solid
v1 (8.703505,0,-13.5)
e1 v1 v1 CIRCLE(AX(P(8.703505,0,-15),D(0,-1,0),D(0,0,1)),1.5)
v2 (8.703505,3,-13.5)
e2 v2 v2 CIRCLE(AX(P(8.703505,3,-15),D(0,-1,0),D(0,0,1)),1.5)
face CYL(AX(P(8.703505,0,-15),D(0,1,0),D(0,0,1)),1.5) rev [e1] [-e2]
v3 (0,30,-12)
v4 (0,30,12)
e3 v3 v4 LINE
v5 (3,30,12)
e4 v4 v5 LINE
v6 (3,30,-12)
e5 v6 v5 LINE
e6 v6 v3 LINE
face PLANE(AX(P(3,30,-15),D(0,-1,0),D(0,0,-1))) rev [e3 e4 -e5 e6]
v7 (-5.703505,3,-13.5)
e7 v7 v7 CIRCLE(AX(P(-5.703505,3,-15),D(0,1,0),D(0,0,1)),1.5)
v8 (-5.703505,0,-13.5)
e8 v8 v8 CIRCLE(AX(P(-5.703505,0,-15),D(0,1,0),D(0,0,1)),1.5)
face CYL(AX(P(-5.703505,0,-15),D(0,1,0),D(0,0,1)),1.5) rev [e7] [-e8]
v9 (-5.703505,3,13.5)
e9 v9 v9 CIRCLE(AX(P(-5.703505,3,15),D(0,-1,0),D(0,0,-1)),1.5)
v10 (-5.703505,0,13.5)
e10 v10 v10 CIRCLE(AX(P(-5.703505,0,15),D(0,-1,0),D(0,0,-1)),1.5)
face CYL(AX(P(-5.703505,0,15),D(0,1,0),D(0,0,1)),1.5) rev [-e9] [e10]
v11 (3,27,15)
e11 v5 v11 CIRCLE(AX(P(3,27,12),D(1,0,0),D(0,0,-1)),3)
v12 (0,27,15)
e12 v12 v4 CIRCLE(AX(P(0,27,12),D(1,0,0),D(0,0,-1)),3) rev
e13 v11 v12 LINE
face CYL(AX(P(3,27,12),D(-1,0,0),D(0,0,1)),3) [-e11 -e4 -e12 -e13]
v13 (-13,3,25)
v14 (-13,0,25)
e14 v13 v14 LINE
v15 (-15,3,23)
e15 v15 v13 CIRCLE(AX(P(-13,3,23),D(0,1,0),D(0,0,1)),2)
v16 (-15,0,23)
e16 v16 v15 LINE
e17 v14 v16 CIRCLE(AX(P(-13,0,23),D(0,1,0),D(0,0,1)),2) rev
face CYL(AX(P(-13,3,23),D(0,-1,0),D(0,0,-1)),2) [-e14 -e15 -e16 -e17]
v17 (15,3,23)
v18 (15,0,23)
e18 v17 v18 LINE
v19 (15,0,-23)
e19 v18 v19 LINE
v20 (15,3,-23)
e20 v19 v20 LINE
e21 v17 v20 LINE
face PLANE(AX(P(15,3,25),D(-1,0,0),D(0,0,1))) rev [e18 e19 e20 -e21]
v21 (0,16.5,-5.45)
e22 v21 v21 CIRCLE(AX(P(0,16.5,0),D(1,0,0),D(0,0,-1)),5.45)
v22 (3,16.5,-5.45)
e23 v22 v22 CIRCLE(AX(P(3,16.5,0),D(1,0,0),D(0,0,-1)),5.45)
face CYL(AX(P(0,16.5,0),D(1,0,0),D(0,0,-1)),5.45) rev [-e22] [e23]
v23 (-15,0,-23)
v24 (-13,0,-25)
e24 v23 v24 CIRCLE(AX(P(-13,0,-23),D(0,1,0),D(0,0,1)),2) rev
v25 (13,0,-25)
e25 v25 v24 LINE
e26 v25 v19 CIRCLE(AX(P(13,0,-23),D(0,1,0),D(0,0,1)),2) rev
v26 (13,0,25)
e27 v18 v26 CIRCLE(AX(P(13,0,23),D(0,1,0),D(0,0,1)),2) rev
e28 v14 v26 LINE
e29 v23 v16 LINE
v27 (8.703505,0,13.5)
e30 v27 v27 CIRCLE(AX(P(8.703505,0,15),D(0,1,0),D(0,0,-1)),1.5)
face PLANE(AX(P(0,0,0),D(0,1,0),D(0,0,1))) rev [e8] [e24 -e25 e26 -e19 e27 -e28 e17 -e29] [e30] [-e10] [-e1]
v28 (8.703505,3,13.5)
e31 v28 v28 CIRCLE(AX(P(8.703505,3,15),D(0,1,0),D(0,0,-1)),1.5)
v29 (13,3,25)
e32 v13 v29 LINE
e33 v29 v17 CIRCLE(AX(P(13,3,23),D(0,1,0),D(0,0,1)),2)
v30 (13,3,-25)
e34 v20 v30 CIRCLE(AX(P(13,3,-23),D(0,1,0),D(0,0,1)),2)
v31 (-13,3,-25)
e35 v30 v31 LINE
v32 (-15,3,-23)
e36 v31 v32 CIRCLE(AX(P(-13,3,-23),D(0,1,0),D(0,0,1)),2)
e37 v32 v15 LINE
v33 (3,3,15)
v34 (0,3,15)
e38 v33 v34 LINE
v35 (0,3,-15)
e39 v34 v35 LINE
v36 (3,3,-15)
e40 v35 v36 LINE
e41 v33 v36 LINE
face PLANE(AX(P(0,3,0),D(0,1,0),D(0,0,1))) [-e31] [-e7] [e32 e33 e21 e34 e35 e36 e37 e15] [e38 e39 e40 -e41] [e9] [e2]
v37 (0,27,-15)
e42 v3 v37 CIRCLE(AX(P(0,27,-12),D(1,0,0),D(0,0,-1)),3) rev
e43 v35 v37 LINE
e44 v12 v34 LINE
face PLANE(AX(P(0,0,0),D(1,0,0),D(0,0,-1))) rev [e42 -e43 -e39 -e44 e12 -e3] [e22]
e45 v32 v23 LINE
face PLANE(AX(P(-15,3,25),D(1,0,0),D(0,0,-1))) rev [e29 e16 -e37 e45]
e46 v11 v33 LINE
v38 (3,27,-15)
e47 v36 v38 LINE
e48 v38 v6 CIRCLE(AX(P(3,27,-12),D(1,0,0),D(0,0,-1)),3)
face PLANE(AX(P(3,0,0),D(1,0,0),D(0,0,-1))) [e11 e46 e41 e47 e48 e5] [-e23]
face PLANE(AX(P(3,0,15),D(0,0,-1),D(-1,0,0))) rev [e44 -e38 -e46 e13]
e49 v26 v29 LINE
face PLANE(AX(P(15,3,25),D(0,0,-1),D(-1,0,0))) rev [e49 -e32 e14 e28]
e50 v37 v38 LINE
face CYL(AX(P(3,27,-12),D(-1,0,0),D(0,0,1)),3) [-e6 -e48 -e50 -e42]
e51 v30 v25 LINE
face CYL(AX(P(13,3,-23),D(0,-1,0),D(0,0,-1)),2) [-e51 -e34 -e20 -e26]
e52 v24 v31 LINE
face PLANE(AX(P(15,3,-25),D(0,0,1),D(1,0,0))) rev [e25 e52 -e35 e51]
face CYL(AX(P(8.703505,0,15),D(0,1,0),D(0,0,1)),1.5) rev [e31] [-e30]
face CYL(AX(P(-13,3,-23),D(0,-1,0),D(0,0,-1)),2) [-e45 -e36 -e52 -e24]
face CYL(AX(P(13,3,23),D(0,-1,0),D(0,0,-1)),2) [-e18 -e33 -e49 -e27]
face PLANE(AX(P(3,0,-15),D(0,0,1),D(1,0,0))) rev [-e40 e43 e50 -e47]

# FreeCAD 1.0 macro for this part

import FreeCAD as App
import Part
import Sketcher

V = App.Vector


def edges_at(feature, points):
    """Names of the edges that pass closest to the given points."""
    edges = feature.Shape.Edges
    near = lambda p: min(range(len(edges)), key=lambda i: edges[i].distToShape(Part.Vertex(*p))[0])
    return sorted({f"Edge{near(p) + 1}" for p in points})

doc = App.newDocument("Part")
body = doc.addObject("PartDesign::Body", "Body")

# Sketch on XZ plane
sketch1 = doc.addObject("Sketcher::SketchObject", "Sketch")
body.addObject(sketch1)
sketch1.AttachmentSupport = (doc.XZ_Plane, [""])
sketch1.MapMode = "FlatFace"
sketch1.addGeometry([
    Part.LineSegment(V(-15, -25, 0), V(-15, 25, 0)),
    Part.LineSegment(V(-15, 25, 0), V(15, 25, 0)),
    Part.LineSegment(V(15, 25, 0), V(15, -25, 0)),
    Part.LineSegment(V(15, -25, 0), V(-15, -25, 0)),
], False)
sketch1.addConstraint([
    Sketcher.Constraint("Coincident", 0, 2, 1, 1),
    Sketcher.Constraint("Coincident", 1, 2, 2, 1),
    Sketcher.Constraint("Coincident", 2, 2, 3, 1),
    Sketcher.Constraint("Coincident", 3, 2, 0, 1),
    Sketcher.Constraint("Vertical", 0),
    Sketcher.Constraint("Horizontal", 1),
    Sketcher.Constraint("Vertical", 2),
    Sketcher.Constraint("Horizontal", 3),
    Sketcher.Constraint("Symmetric", 0, 2, 2, 2, -1, 1),
    Sketcher.Constraint("DistanceX", 1, 1, 1, 2, 30.0),
    Sketcher.Constraint("DistanceY", 0, 1, 0, 2, 50.0),
])
pad1 = doc.addObject("PartDesign::Pad", "Pad")
body.addObject(pad1)
pad1.Profile = sketch1
pad1.Length = 3
pad1.Reversed = True

# Sketch on YZ plane
sketch2 = doc.addObject("Sketcher::SketchObject", "Sketch001")
body.addObject(sketch2)
sketch2.AttachmentSupport = (doc.YZ_Plane, [""])
sketch2.MapMode = "FlatFace"
sketch2.addGeometry([
    Part.LineSegment(V(30, 15, 0), V(0, 15, 0)),
    Part.LineSegment(V(0, 15, 0), V(0, -15, 0)),
    Part.LineSegment(V(0, -15, 0), V(30, -15, 0)),
    Part.LineSegment(V(30, -15, 0), V(30, 15, 0)),
], False)
sketch2.addConstraint([
    Sketcher.Constraint("Coincident", 0, 2, 1, 1),
    Sketcher.Constraint("Coincident", 1, 2, 2, 1),
    Sketcher.Constraint("Coincident", 2, 2, 3, 1),
    Sketcher.Constraint("Coincident", 3, 2, 0, 1),
    Sketcher.Constraint("Horizontal", 0),
    Sketcher.Constraint("Vertical", 1),
    Sketcher.Constraint("Horizontal", 2),
    Sketcher.Constraint("Vertical", 3),
    Sketcher.Constraint("Symmetric", 0, 2, 1, 2, -1, 1),
    Sketcher.Constraint("Equal", 2, 1),
    Sketcher.Constraint("DistanceX", 0, 2, 0, 1, 30.0),
])
pad2 = doc.addObject("PartDesign::Pad", "Pad001")
body.addObject(pad2)
pad2.Profile = sketch2
pad2.Length = 3

# Sketch on YZ plane
sketch3 = doc.addObject("Sketcher::SketchObject", "Sketch002")
body.addObject(sketch3)
sketch3.AttachmentSupport = (doc.YZ_Plane, [""])
sketch3.MapMode = "FlatFace"
sketch3.AttachmentOffset = App.Placement(V(0, 0, 3), App.Rotation())
sketch3.addGeometry(Part.Circle(V(16, 0, 0), V(0, 0, 1), 5), False)
sketch3.addConstraint([
    Sketcher.Constraint("PointOnObject", 0, 3, -1),
    Sketcher.Constraint("Diameter", 0, 10.9),
    Sketcher.Constraint("DistanceX", -1, 1, 0, 3, 16.5),
])
pocket1 = doc.addObject("PartDesign::Pocket", "Pocket")
body.addObject(pocket1)
pocket1.Profile = sketch3
pocket1.Length = 3
doc.recompute()

fillet = doc.addObject("PartDesign::Fillet", "Fillet")
body.addObject(fillet)
fillet.Base = (pocket1, edges_at(pocket1, [
    (-15, 1.5, -25),
    (15, 1.5, -25),
    (15, 1.5, 25),
    (-15, 1.5, 25),
]))
fillet.Radius = 2
doc.recompute()

fillet2 = doc.addObject("PartDesign::Fillet", "Fillet001")
body.addObject(fillet2)
fillet2.Base = (fillet, edges_at(fillet, [(1.5, 30, 15), (1.5, 30, -15)]))
fillet2.Radius = 3

# Sketch on XZ plane
sketch4 = doc.addObject("Sketcher::SketchObject", "Sketch003")
body.addObject(sketch4)
sketch4.AttachmentSupport = (doc.XZ_Plane, [""])
sketch4.MapMode = "FlatFace"
sketch4.AttachmentOffset = App.Placement(V(0, 0, -3), App.Rotation())
sketch4.addGeometry(Part.Circle(V(-5.7, -15, 0), V(0, 0, 1), 1.5), False)
sketch4.addConstraint([
    Sketcher.Constraint("Diameter", 0, 3.0),
    Sketcher.Constraint("DistanceY", 0, 3, -1, 1, 15.0),
    Sketcher.Constraint("DistanceX", 0, 3, -1, 1, 5.703505),
])
pocket2 = doc.addObject("PartDesign::Pocket", "Pocket001")
body.addObject(pocket2)
pocket2.Profile = sketch4
pocket2.Length = 3
pocket2.Reversed = True
doc.recompute()

mirrored = doc.addObject("PartDesign::Mirrored", "Mirrored")
body.addObject(mirrored)
mirrored.Originals = [pocket2]
mirrored.MirrorPlane = (doc.XY_Plane, [""])
body.Tip = mirrored
doc.recompute()

datumplane = doc.addObject("PartDesign::Plane", "DatumPlane")
body.addObject(datumplane)
datumplane.AttachmentSupport = (doc.YZ_Plane, [""])
datumplane.MapMode = "FlatFace"
datumplane.AttachmentOffset = App.Placement(V(0, 0, 1.5), App.Rotation())
mirrored2 = doc.addObject("PartDesign::Mirrored", "Mirrored001")
body.addObject(mirrored2)
mirrored2.Originals = [pocket2]
mirrored2.MirrorPlane = (datumplane, [""])
body.Tip = mirrored2

# Sketch on XZ plane
sketch5 = doc.addObject("Sketcher::SketchObject", "Sketch004")
body.addObject(sketch5)
sketch5.AttachmentSupport = (doc.XZ_Plane, [""])
sketch5.MapMode = "FlatFace"
sketch5.AttachmentOffset = App.Placement(V(0, 0, -3), App.Rotation())
sketch5.addGeometry(Part.Circle(V(8.7, 15, 0), V(0, 0, 1), 1.5), False)
sketch5.addConstraint([
    Sketcher.Constraint("Diameter", 0, 3.0),
    Sketcher.Constraint("DistanceY", -1, 1, 0, 3, 15.0),
    Sketcher.Constraint("DistanceX", -1, 1, 0, 3, 8.703505),
])
pocket3 = doc.addObject("PartDesign::Pocket", "Pocket002")
body.addObject(pocket3)
pocket3.Profile = sketch5
pocket3.Length = 3
pocket3.Reversed = True

doc.recompute()
